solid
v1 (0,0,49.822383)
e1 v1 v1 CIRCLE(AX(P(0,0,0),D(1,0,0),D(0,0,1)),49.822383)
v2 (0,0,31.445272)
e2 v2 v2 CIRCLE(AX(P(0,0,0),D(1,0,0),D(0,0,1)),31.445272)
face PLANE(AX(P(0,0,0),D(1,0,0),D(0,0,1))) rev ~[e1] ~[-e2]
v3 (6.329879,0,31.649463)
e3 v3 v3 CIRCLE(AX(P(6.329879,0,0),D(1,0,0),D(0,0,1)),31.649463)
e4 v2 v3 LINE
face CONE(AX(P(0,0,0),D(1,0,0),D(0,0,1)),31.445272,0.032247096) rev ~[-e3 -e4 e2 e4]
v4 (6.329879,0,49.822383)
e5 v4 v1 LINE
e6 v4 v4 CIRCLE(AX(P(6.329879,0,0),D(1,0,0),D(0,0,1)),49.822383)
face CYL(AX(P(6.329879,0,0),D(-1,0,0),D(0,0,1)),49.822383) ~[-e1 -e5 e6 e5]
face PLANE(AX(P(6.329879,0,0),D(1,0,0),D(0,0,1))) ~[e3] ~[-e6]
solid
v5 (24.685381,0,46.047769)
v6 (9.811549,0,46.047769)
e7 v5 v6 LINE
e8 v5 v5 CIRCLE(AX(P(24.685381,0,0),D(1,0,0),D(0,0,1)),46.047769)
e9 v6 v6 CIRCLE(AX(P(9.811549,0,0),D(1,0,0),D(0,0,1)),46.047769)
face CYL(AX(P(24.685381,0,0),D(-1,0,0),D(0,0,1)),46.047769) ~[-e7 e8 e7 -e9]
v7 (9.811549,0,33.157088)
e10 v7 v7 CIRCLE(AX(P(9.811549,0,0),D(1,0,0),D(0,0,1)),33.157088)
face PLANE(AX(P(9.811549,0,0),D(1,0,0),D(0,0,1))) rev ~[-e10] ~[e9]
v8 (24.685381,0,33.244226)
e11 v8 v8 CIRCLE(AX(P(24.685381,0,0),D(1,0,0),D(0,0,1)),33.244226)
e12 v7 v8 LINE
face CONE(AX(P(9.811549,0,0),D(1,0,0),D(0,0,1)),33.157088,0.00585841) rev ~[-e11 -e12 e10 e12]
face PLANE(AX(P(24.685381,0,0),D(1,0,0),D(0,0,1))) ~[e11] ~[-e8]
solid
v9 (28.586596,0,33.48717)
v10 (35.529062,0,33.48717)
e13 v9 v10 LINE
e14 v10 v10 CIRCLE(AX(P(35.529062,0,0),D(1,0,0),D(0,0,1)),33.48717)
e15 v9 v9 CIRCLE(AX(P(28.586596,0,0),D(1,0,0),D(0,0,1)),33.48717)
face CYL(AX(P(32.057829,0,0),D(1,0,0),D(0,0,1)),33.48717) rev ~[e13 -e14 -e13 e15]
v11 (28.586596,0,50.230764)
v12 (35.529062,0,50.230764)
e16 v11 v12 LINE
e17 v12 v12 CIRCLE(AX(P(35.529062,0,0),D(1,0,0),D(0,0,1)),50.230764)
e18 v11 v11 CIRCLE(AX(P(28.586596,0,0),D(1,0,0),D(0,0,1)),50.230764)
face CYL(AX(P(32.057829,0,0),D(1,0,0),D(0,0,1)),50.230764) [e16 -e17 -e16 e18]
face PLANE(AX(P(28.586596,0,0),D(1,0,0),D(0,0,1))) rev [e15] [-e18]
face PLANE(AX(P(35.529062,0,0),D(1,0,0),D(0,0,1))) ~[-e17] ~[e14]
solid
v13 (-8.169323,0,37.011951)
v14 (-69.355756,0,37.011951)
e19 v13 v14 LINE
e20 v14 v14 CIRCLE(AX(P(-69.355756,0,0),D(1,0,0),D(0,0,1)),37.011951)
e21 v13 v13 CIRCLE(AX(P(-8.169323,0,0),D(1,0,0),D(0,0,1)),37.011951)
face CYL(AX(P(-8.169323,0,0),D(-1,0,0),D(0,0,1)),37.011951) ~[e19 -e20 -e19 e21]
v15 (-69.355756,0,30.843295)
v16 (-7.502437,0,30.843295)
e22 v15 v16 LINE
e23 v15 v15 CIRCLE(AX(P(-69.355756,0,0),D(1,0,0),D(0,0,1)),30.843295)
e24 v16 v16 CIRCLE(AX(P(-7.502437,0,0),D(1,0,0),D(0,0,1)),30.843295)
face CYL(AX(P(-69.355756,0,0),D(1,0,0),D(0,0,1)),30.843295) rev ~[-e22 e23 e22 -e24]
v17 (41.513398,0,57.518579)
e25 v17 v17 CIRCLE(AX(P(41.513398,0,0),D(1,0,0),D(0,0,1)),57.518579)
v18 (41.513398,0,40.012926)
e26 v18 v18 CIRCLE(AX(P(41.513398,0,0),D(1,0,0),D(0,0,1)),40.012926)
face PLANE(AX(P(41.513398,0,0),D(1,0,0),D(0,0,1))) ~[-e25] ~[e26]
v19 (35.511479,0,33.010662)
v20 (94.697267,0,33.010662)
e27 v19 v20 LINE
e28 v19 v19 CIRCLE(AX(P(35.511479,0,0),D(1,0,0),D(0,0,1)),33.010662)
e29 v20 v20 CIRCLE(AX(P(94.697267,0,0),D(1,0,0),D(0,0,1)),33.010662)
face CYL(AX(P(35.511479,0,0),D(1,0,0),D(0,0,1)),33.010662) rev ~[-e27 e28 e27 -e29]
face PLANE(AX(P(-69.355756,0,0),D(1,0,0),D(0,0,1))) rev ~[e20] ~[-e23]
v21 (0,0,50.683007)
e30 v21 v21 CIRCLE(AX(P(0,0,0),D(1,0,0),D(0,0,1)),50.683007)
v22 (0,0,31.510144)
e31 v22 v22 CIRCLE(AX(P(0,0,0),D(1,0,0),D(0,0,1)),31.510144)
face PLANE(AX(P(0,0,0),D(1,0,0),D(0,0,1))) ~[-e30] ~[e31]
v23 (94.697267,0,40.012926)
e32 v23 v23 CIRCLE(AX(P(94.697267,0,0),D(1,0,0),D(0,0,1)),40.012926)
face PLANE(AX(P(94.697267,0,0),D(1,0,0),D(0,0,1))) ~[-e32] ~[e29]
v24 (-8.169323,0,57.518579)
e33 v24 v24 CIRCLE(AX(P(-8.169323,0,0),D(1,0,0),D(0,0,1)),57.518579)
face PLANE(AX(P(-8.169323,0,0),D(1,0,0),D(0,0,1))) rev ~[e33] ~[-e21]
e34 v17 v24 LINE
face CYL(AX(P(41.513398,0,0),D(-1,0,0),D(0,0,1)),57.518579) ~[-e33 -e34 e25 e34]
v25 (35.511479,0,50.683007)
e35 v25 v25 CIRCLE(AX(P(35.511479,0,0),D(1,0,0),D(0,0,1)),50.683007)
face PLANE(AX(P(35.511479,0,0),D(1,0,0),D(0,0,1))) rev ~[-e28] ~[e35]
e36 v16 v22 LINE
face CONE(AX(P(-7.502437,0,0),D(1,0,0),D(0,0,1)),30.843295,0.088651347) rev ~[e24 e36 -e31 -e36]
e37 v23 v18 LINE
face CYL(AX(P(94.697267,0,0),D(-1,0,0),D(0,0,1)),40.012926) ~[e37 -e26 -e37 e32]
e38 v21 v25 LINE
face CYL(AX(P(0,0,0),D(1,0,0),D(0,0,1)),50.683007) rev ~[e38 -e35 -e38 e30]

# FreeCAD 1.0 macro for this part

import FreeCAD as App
import Part
import Sketcher
from FreeCAD import Vector
Q = App.Units.Quantity


def add_polygon(sketch, points):
    """Adds a closed chain of lines whose ends are joined by coincident constraints."""
    first, n = sketch.GeometryCount, len(points)
    for a, b in zip(points, points[1:] + points[:1]):
        sketch.addGeometry(Part.LineSegment(App.Vector(*a, 0), App.Vector(*b, 0)), False)
    for i in range(n):
        sketch.addConstraint(Sketcher.Constraint("Coincident", first + i, 2, first + (i + 1) % n, 1))

doc = App.newDocument("Part")
params = doc.addObject("Spreadsheet::Sheet", "Params")
for row, (alias, value) in enumerate([
    ("revolution_angle", "360 deg"),
    ("revolution2_angle", "360 deg"),
    ("revolution3_angle", "360 deg"),
    ("revolution4_angle", "360 deg"),
], start=1):
    params.set(f"A{row}", alias)
    params.set(f"B{row}", "=" + value)
    params.setAlias(f"B{row}", alias)

body = doc.addObject("PartDesign::Body", "Body")

sketch1 = body.newObject("Sketcher::SketchObject", "Sketch")
sketch1.AttachmentSupport = (doc.getObject("XZ_Plane"), [""])
sketch1.MapMode = "FlatFace"
add_polygon(sketch1, [(9.811549, 46.047769), (9.811549, 33.157088), (24.685381, 33.244226), (24.685381, 46.047769)])
sketch1.addConstraint([
    Sketcher.Constraint("Vertical", 0),
    Sketcher.Constraint("Vertical", 2),
    Sketcher.Constraint("Horizontal", 3),
    Sketcher.Constraint("DistanceY", 0, 2, 0, 1, Q("12.890681 mm")),
    Sketcher.Constraint("DistanceX", 3, 2, 3, 1, Q("14.873832 mm")),
    Sketcher.Constraint("DistanceY", 2, 1, 2, 2, Q("12.803543 mm")),
    Sketcher.Constraint("DistanceX", -1, 1, 0, 2, Q("9.811549 mm")),
    Sketcher.Constraint("DistanceY", -1, 1, 0, 2, Q("33.157088 mm")),
])
revolution = body.newObject("PartDesign::Revolution", "Revolution")
revolution.Profile = sketch1
revolution.ReferenceAxis = (sketch1, ["H_Axis"])
revolution.setExpression("Angle", "Params.revolution_angle")
body2 = doc.addObject("PartDesign::Body", "Body001")

sketch2 = body2.newObject("Sketcher::SketchObject", "Sketch001")
sketch2.AttachmentSupport = (doc.getObject("XZ_Plane001"), [""])
sketch2.MapMode = "FlatFace"
add_polygon(sketch2, [(28.586596, 50.230764), (28.586596, 33.48717), (35.529062, 33.48717), (35.529062, 50.230764)])
sketch2.addConstraint([
    Sketcher.Constraint("Vertical", 0),
    Sketcher.Constraint("Horizontal", 1),
    Sketcher.Constraint("Vertical", 2),
    Sketcher.Constraint("Horizontal", 3),
    Sketcher.Constraint("DistanceX", 1, 1, 1, 2, Q("6.942466 mm")),
    Sketcher.Constraint("DistanceY", 0, 2, 0, 1, Q("16.743593 mm")),
    Sketcher.Constraint("DistanceY", -1, 1, 0, 2, Q("33.48717 mm")),
    Sketcher.Constraint("DistanceX", -1, 1, 0, 2, Q("28.586596 mm")),
])
revolution2 = body2.newObject("PartDesign::Revolution", "Revolution001")
revolution2.Profile = sketch2
revolution2.ReferenceAxis = (sketch2, ["H_Axis"])
revolution2.setExpression("Angle", "Params.revolution2_angle")
body3 = doc.addObject("PartDesign::Body", "Body002")

sketch3 = body3.newObject("Sketcher::SketchObject", "Sketch002")
sketch3.AttachmentSupport = (doc.getObject("XZ_Plane002"), [""])
sketch3.MapMode = "FlatFace"
add_polygon(sketch3, [(0, 49.822383), (0, 31.445272), (6.329879, 31.649463), (6.329879, 49.822383)])
sketch3.addConstraint([
    Sketcher.Constraint("Vertical", 0),
    Sketcher.Constraint("Vertical", 2),
    Sketcher.Constraint("Horizontal", 3),
    Sketcher.Constraint("PointOnObject", 0, 2, -2),
    Sketcher.Constraint("DistanceX", 3, 2, 3, 1, Q("6.329879 mm")),
    Sketcher.Constraint("DistanceY", 0, 2, 0, 1, Q("18.377111 mm")),
    Sketcher.Constraint("DistanceY", 2, 1, 2, 2, Q("18.17292 mm")),
    Sketcher.Constraint("DistanceY", -1, 1, 0, 2, Q("31.445272 mm")),
])
revolution3 = body3.newObject("PartDesign::Revolution", "Revolution002")
revolution3.Profile = sketch3
revolution3.ReferenceAxis = (sketch3, ["H_Axis"])
revolution3.setExpression("Angle", "Params.revolution3_angle")
body4 = doc.addObject("PartDesign::Body", "Body003")

sketch4 = body4.newObject("Sketcher::SketchObject", "Sketch003")
sketch4.AttachmentSupport = (doc.getObject("XZ_Plane003"), [""])
sketch4.MapMode = "FlatFace"
add_polygon(sketch4, [(-69.355756, 30.843295), (-7.502437, 30.843295), (0, 31.510144), (0, 50.683007), (35.511479, 50.683007), (35.511479, 33.010662), (94.697267, 33.010662), (94.697267, 40.012926), (41.513398, 40.012926), (41.513398, 57.518579), (-8.169323, 57.518579), (-8.169323, 37.011951), (-69.355756, 37.011951)])
sketch4.addConstraint([
    Sketcher.Constraint("Horizontal", 0),
    Sketcher.Constraint("Vertical", 2),
    Sketcher.Constraint("Horizontal", 3),
    Sketcher.Constraint("Vertical", 4),
    Sketcher.Constraint("Horizontal", 5),
    Sketcher.Constraint("Vertical", 6),
    Sketcher.Constraint("Horizontal", 7),
    Sketcher.Constraint("Vertical", 8),
    Sketcher.Constraint("Horizontal", 9),
    Sketcher.Constraint("Vertical", 10),
    Sketcher.Constraint("Horizontal", 11),
    Sketcher.Constraint("Vertical", 12),
    Sketcher.Constraint("PointOnObject", 1, 2, -2),
    Sketcher.Constraint("DistanceX", 0, 1, 0, 2, Q("61.853319 mm")),
    Sketcher.Constraint("DistanceX", 3, 1, 3, 2, Q("35.511479 mm")),
    Sketcher.Constraint("DistanceX", 7, 2, 7, 1, Q("53.183869 mm")),
    Sketcher.Constraint("DistanceX", 9, 2, 9, 1, Q("49.682721 mm")),
    Sketcher.Constraint("DistanceX", -1, 1, 7, 2, Q("41.513398 mm")),
    Sketcher.Constraint("DistanceX", 11, 2, 11, 1, Q("61.186433 mm")),
    Sketcher.Constraint("DistanceY", 2, 1, 2, 2, Q("19.172863 mm")),
    Sketcher.Constraint("DistanceY", 4, 2, 4, 1, Q("17.672345 mm")),
    Sketcher.Constraint("DistanceY", 6, 1, 6, 2, Q("7.002264 mm")),
    Sketcher.Constraint("DistanceY", 8, 1, 8, 2, Q("17.505653 mm")),
    Sketcher.Constraint("DistanceY", 10, 2, 10, 1, Q("20.506628 mm")),
    Sketcher.Constraint("DistanceY", 12, 2, 12, 1, Q("6.168656 mm")),
    Sketcher.Constraint("DistanceY", -1, 1, 8, 2, Q("57.518579 mm")),
])
revolution4 = body4.newObject("PartDesign::Revolution", "Revolution003")
revolution4.Profile = sketch4
revolution4.ReferenceAxis = (sketch4, ["H_Axis"])
revolution4.setExpression("Angle", "Params.revolution4_angle")

doc.recompute()
